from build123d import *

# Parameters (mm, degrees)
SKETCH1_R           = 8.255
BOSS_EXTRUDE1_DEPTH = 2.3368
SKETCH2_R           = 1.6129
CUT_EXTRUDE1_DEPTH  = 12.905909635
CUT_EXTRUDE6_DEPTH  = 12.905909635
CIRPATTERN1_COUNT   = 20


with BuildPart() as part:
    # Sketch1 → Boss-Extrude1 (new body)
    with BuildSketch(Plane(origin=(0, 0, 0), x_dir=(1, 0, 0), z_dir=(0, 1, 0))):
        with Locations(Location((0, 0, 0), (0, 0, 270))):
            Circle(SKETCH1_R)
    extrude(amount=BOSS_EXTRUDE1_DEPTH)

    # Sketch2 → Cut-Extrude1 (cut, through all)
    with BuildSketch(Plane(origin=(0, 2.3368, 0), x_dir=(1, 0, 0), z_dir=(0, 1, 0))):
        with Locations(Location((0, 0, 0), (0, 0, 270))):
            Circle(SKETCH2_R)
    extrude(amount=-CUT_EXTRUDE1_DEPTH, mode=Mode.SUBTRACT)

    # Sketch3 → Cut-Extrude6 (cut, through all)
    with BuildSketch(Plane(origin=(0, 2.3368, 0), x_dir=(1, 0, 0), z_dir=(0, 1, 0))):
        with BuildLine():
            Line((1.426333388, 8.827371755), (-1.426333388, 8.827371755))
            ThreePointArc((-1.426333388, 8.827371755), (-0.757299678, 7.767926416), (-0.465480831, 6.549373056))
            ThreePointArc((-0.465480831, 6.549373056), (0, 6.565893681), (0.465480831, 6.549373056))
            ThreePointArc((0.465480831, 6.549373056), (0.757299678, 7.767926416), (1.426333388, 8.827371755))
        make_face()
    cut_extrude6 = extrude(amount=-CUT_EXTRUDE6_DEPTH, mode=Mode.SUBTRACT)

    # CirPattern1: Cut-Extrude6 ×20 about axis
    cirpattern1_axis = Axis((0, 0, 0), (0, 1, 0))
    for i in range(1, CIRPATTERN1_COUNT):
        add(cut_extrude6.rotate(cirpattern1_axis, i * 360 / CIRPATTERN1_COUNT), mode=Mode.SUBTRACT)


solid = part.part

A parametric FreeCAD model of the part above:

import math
import FreeCAD as App
import Part
import Sketcher

V = App.Vector
Q = App.Units.Quantity

doc = App.newDocument("Part")
body = doc.addObject("PartDesign::Body", "Body")

sketch1 = body.newObject("Sketcher::SketchObject", "Sketch")
sketch1.AttachmentSupport = (doc.getObject("XZ_Plane"), [""])
sketch1.MapMode = "FlatFace"
sketch1.addGeometry(Part.Circle(V(0, 0, 0), V(0, 0, 1), 8), False)
sketch1.addConstraint([
    Sketcher.Constraint("Coincident", 0, 3, -1, 1),
    Sketcher.Constraint("Diameter", 0, Q("0.65 in")),
])
pad1 = body.newObject("PartDesign::Pad", "Pad")
pad1.Profile = sketch1
pad1.Length = Q("0.092 in")
pad1.Reversed = True

sketch2 = body.newObject("Sketcher::SketchObject", "Sketch001")
sketch2.AttachmentSupport = (doc.getObject("XZ_Plane"), [""])
sketch2.MapMode = "FlatFace"
sketch2.AttachmentOffset = App.Placement(V(0, 0, -0.092 * 25.4), App.Rotation())
sketch2.addGeometry(Part.Circle(V(0, 0, 0), V(0, 0, 1), 1.6), False)
sketch2.addConstraint([
    Sketcher.Constraint("Coincident", 0, 3, -1, 1),
    Sketcher.Constraint("Diameter", 0, Q("0.127 in")),
])
pocket1 = body.newObject("PartDesign::Pocket", "Pocket")
pocket1.Profile = sketch2
pocket1.Type = "ThroughAll"
pocket1.Reversed = True

sketch3 = body.newObject("Sketcher::SketchObject", "Sketch002")
sketch3.AttachmentSupport = (doc.getObject("XZ_Plane"), [""])
sketch3.MapMode = "FlatFace"
sketch3.AttachmentOffset = App.Placement(V(0, 0, -0.092 * 25.4), App.Rotation())
sketch3.addGeometry([
    Part.LineSegment(V(1.4, -8.8, 0), V(-1.4, -8.8, 0)),
    Part.ArcOfCircle(Part.Circle(V(-4.3, -6.3, 0), V(0, 0, 1), 3.8), math.radians(-42), math.radians(-4)),
    Part.ArcOfCircle(Part.Circle(V(0, 0, 0), V(0, 0, 1), 6.6), math.radians(-94.07), math.radians(-85.93)),
    Part.ArcOfCircle(Part.Circle(V(4.3, -6.3, 0), V(0, 0, 1), 3.8), math.radians(-176), math.radians(-138)),
], False)
sketch3.addConstraint([
    Sketcher.Constraint("Coincident", 0, 2, 1, 1),
    Sketcher.Constraint("Coincident", 1, 2, 2, 1),
    Sketcher.Constraint("Coincident", 2, 2, 3, 1),
    Sketcher.Constraint("Coincident", 3, 2, 0, 1),
    Sketcher.Constraint("Horizontal", 0),
    Sketcher.Constraint("Coincident", 2, 3, -1, 1),
    Sketcher.Constraint("Equal", 1, 3),
    Sketcher.Constraint("Symmetric", 1, 3, 3, 3, -2),
    Sketcher.Constraint("Radius", 1, 3.834977),
    Sketcher.Constraint("Radius", 2, 6.565894),
    Sketcher.Constraint("DistanceY", 0, 2, 1, 2, 2.277999),
    Sketcher.Constraint("DistanceX", 0, 2, 0, 1, 2.852667),
    Sketcher.Constraint("DistanceX", 1, 3, -1, 1, 4.290809),
])
pocket2 = body.newObject("PartDesign::Pocket", "Pocket001")
pocket2.Profile = sketch3
pocket2.Type = "ThroughAll"
pocket2.Reversed = True
doc.recompute()

polarpattern = body.newObject("PartDesign::PolarPattern", "PolarPattern")
polarpattern.Originals = [pocket2]
polarpattern.Axis = (doc.getObject("Y_Axis"), [""])
polarpattern.Angle = 360
polarpattern.Occurrences = 20
body.Tip = polarpattern

doc.recompute()
